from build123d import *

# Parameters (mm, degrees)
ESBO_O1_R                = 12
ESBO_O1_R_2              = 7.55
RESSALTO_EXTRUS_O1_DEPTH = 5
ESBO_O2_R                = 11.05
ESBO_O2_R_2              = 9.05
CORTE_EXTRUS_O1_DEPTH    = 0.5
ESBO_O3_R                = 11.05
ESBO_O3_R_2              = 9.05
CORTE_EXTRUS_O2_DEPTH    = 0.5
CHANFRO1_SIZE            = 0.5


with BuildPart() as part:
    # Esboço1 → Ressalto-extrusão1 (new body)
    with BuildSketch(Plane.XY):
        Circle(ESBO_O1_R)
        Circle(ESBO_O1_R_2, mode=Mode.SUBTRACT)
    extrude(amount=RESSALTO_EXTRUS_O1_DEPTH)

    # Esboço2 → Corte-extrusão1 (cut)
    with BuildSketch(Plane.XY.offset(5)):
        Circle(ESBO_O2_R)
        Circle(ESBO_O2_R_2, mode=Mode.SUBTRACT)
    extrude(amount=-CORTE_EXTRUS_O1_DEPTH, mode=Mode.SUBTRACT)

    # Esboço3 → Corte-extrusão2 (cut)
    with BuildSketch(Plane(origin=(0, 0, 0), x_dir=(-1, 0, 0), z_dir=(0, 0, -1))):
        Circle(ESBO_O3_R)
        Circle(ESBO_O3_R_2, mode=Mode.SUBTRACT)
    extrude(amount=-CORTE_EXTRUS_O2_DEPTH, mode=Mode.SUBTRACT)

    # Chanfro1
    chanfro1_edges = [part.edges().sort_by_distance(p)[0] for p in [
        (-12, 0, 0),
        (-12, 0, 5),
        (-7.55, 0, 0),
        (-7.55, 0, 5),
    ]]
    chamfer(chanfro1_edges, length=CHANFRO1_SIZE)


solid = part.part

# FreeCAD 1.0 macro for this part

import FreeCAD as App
import Part
import Sketcher
Q = App.Units.Quantity


def edges_at(feature, points):
    """Names of the edges that pass closest to the given points."""
    edges = feature.Shape.Edges
    near = lambda p: min(range(len(edges)), key=lambda i: edges[i].distToShape(Part.Vertex(*p))[0])
    return sorted({f"Edge{near(p) + 1}" for p in points})

doc = App.newDocument("Part")
body = doc.addObject("PartDesign::Body", "Body")

# Sketch on XY plane
sketch1 = body.newObject("Sketcher::SketchObject", "Sketch")
sketch1.AttachmentSupport = (doc.getObject("XY_Plane"), [""])
sketch1.MapMode = "FlatFace"
sketch1.addGeometry([
    Part.Circle(App.Vector(0, 0, 0), App.Vector(0, 0, 1), 12),
    Part.Circle(App.Vector(0, 0, 0), App.Vector(0, 0, 1), 7.55),
], False)
sketch1.addConstraint([
    Sketcher.Constraint("Coincident", 0, 3, -1, 1),
    Sketcher.Constraint("Coincident", 1, 3, -1, 1),
    Sketcher.Constraint("Diameter", 0, Q("24 mm")),
    Sketcher.Constraint("Diameter", 1, Q("15.1 mm")),
])
pad1 = body.newObject("PartDesign::Pad", "Pad")
pad1.Profile = sketch1
pad1.Length = 5

# Sketch on XY plane
sketch2 = body.newObject("Sketcher::SketchObject", "Sketch001")
sketch2.AttachmentSupport = (doc.getObject("XY_Plane"), [""])
sketch2.MapMode = "FlatFace"
sketch2.AttachmentOffset = App.Placement(App.Vector(0, 0, 5), App.Rotation())
sketch2.addGeometry([
    Part.Circle(App.Vector(0, 0, 0), App.Vector(0, 0, 1), 11.05),
    Part.Circle(App.Vector(0, 0, 0), App.Vector(0, 0, 1), 9.05),
], False)
sketch2.addConstraint([
    Sketcher.Constraint("Coincident", 0, 3, -1, 1),
    Sketcher.Constraint("Coincident", 1, 3, -1, 1),
    Sketcher.Constraint("Diameter", 0, Q("22.1 mm")),
    Sketcher.Constraint("Diameter", 1, Q("18.1 mm")),
])
pocket1 = body.newObject("PartDesign::Pocket", "Pocket")
pocket1.Profile = sketch2
pocket1.Length = 0.5

# Sketch on XY plane
sketch3 = body.newObject("Sketcher::SketchObject", "Sketch002")
sketch3.AttachmentSupport = (doc.getObject("XY_Plane"), [""])
sketch3.MapMode = "FlatFace"
sketch3.addGeometry([
    Part.Circle(App.Vector(0, 0, 0), App.Vector(0, 0, 1), 11.05),
    Part.Circle(App.Vector(0, 0, 0), App.Vector(0, 0, 1), 9.05),
], False)
sketch3.addConstraint([
    Sketcher.Constraint("Coincident", 0, 3, -1, 1),
    Sketcher.Constraint("Coincident", 1, 3, -1, 1),
    Sketcher.Constraint("Diameter", 0, Q("22.1 mm")),
    Sketcher.Constraint("Diameter", 1, Q("18.1 mm")),
])
pocket2 = body.newObject("PartDesign::Pocket", "Pocket001")
pocket2.Profile = sketch3
pocket2.Length = 0.5
pocket2.Reversed = True
doc.recompute()

chamfer = body.newObject("PartDesign::Chamfer", "Chamfer")
chamfer.Base = (pocket2, edges_at(pocket2, [
    (-12, 0, 0),
    (-12, 0, 5),
    (-7.55, 0, 0),
    (-7.55, 0, 5),
]))
chamfer.Size = 0.5

doc.recompute()
